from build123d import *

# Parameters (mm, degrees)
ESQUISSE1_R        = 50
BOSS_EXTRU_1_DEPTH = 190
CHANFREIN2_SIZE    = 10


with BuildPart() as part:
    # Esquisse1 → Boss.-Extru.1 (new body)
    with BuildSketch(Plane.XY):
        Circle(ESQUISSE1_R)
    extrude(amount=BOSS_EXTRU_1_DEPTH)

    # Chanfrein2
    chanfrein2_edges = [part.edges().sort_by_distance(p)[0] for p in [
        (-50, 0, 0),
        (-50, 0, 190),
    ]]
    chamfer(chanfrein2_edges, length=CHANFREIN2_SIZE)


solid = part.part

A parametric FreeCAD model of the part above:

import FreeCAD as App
import Part
import Sketcher
from FreeCAD import Vector


def edges_at(feature, points):
    """Names of the edges that pass closest to the given points."""
    edges = feature.Shape.Edges
    near = lambda p: min(range(len(edges)), key=lambda i: edges[i].distToShape(Part.Vertex(*p))[0])
    return sorted({f"Edge{near(p) + 1}" for p in points})

doc = App.newDocument("Part")
body = doc.addObject("PartDesign::Body", "Body")

sketch1 = body.newObject("Sketcher::SketchObject", "Sketch")
sketch1.AttachmentSupport = (doc.getObject("XY_Plane"), [""])
sketch1.MapMode = "FlatFace"
sketch1.addGeometry(Part.Circle(Vector(0, 0, 0), Vector(0, 0, 1), 50), False)
sketch1.addConstraint(Sketcher.Constraint("Coincident", 0, 3, -1, 1))
sketch1.addConstraint(Sketcher.Constraint("Diameter", 0, 100.0))
pad1 = body.newObject("PartDesign::Pad", "Pad")
pad1.Profile = sketch1
pad1.Length = 190
doc.recompute()

chamfer = body.newObject("PartDesign::Chamfer", "Chamfer")
chamfer.Base = (pad1, edges_at(pad1, [(-50, 0, 0), (-50, 0, 190)]))
chamfer.Size = 10

doc.recompute()
